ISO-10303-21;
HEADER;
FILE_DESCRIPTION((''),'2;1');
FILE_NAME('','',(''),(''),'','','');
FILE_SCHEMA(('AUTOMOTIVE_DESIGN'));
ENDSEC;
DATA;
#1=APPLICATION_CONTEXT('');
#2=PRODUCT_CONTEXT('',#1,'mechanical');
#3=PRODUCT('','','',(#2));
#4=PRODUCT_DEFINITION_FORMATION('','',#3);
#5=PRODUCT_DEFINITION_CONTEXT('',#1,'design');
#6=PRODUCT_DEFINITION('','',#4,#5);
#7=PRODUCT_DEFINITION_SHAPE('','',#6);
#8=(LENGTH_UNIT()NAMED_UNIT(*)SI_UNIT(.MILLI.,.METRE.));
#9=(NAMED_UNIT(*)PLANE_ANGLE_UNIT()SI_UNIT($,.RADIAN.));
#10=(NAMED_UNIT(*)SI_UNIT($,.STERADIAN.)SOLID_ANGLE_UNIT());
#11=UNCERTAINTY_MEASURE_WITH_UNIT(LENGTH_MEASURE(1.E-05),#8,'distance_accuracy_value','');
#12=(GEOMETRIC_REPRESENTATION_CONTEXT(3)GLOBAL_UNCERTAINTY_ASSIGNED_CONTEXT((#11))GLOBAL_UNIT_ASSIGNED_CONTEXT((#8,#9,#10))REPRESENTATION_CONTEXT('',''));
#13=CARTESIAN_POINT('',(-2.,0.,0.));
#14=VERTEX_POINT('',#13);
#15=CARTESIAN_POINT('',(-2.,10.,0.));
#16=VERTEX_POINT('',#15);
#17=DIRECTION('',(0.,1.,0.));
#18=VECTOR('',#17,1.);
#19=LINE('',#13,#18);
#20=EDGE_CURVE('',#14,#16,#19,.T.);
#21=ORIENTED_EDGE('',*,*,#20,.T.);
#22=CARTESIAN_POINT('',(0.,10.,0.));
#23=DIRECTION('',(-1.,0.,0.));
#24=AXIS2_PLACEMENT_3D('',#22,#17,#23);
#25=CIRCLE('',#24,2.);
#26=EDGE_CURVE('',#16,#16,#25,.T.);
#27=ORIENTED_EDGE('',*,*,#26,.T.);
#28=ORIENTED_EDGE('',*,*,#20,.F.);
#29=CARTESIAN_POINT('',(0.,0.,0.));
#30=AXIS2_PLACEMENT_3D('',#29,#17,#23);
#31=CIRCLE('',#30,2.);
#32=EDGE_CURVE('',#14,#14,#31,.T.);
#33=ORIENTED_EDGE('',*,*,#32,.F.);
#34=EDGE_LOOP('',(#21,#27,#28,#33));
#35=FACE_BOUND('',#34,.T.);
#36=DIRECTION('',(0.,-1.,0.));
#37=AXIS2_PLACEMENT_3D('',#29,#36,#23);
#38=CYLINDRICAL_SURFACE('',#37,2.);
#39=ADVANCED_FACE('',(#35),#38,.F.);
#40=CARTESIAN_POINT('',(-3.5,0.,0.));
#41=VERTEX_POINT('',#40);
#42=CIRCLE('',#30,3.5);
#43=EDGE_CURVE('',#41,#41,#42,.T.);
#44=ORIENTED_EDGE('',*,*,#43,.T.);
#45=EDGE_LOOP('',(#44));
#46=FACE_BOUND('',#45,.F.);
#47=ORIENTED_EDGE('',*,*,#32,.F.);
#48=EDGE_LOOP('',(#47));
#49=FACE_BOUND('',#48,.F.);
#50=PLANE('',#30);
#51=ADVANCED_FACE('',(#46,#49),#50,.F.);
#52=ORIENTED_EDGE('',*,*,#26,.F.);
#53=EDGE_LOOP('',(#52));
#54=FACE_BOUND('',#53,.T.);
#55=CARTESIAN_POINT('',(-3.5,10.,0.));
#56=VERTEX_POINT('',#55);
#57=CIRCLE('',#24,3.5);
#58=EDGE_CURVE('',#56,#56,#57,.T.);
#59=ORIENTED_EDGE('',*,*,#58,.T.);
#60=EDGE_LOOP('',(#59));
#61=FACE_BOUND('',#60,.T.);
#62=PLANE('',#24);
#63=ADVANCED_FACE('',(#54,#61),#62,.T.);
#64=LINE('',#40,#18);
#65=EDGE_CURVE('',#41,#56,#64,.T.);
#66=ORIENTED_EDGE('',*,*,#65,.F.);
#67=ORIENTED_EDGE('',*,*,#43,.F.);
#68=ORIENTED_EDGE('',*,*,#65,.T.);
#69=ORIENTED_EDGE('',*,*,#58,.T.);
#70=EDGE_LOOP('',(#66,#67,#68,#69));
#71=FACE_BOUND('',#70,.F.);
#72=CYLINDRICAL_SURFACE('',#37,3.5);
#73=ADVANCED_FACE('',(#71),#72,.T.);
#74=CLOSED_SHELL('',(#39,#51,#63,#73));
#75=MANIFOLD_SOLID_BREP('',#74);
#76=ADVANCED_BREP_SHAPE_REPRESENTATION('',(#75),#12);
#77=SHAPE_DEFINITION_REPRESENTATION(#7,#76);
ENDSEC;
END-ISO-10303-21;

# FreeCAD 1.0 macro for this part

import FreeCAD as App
import Part
import Sketcher
from FreeCAD import Vector

doc = App.newDocument("Part")
params = doc.addObject("Spreadsheet::Sheet", "Params")
for row, (alias, value) in enumerate([
    ("sketch1_diameter", "7 mm"),
    ("sketch1_diameter2", "4 mm"),
    ("pad1_length", "10 mm"),
], start=1):
    params.set(f"A{row}", alias)
    params.set(f"B{row}", "=" + value)
    params.setAlias(f"B{row}", alias)

body = doc.addObject("PartDesign::Body", "Body")

sketch1 = body.newObject("Sketcher::SketchObject", "Sketch")
sketch1.AttachmentSupport = (doc.getObject("XZ_Plane"), [""])
sketch1.MapMode = "FlatFace"
sketch1.addGeometry(Part.Circle(Vector(0, 0, 0), Vector(0, 0, 1), 3.5), False)
sketch1.addGeometry(Part.Circle(Vector(0, 0, 0), Vector(0, 0, 1), 2), False)
sketch1.addConstraint(Sketcher.Constraint("Coincident", 0, 3, -1, 1))
sketch1.addConstraint(Sketcher.Constraint("Coincident", 1, 3, -1, 1))
sketch1.addConstraint(Sketcher.Constraint("Diameter", 0, 7.0))
sketch1.addConstraint(Sketcher.Constraint("Diameter", 1, 4.0))
sketch1.setExpression("Constraints[2]", "Params.sketch1_diameter")
sketch1.setExpression("Constraints[3]", "Params.sketch1_diameter2")
pad1 = body.newObject("PartDesign::Pad", "Pad")
pad1.Profile = sketch1
pad1.setExpression("Length", "Params.pad1_length")
pad1.Reversed = True

doc.recompute()
